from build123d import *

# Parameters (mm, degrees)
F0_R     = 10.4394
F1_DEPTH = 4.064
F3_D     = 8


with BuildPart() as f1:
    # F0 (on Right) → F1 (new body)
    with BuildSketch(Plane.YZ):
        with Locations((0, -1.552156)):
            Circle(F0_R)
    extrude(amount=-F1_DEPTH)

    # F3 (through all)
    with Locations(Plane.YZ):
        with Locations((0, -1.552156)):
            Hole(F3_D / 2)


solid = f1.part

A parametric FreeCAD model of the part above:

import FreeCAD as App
import Part
import Sketcher
from FreeCAD import Vector
Q = App.Units.Quantity

doc = App.newDocument("Part")
body = doc.addObject("PartDesign::Body", "Body")

sketch1 = body.newObject("Sketcher::SketchObject", "Sketch")
sketch1.AttachmentSupport = (doc.getObject("YZ_Plane"), [""])
sketch1.MapMode = "FlatFace"
sketch1.addGeometry(Part.Circle(Vector(0, -2, 0), Vector(0, 0, 1), 10), False)
sketch1.addConstraint(Sketcher.Constraint("PointOnObject", 0, 3, -2))
sketch1.addConstraint(Sketcher.Constraint("Diameter", 0, Q("0.822 in")))
sketch1.addConstraint(Sketcher.Constraint("DistanceY", 0, 3, -1, 1, Q("1.552156 mm")))
pad1 = body.newObject("PartDesign::Pad", "Pad")
pad1.Profile = sketch1
pad1.Length = Q("0.16 in")
pad1.Reversed = True

sketch2 = body.newObject("Sketcher::SketchObject", "Sketch001")
sketch2.AttachmentSupport = (doc.getObject("YZ_Plane"), [""])
sketch2.MapMode = "FlatFace"
sketch2.addGeometry(Part.Circle(Vector(0, -1.6, 0), Vector(0, 0, 1), 4), False)
sketch2.addConstraint(Sketcher.Constraint("PointOnObject", 0, 3, -2))
sketch2.addConstraint(Sketcher.Constraint("Diameter", 0, Q("8 mm")))
sketch2.addConstraint(Sketcher.Constraint("DistanceY", 0, 3, -1, 1, Q("1.552156 mm")))
doc.recompute()
hole = body.newObject("PartDesign::Hole", "Hole")
hole.Profile = sketch2
hole.ThreadType = "None"
hole.Diameter = 8
hole.DepthType = "ThroughAll"

doc.recompute()
